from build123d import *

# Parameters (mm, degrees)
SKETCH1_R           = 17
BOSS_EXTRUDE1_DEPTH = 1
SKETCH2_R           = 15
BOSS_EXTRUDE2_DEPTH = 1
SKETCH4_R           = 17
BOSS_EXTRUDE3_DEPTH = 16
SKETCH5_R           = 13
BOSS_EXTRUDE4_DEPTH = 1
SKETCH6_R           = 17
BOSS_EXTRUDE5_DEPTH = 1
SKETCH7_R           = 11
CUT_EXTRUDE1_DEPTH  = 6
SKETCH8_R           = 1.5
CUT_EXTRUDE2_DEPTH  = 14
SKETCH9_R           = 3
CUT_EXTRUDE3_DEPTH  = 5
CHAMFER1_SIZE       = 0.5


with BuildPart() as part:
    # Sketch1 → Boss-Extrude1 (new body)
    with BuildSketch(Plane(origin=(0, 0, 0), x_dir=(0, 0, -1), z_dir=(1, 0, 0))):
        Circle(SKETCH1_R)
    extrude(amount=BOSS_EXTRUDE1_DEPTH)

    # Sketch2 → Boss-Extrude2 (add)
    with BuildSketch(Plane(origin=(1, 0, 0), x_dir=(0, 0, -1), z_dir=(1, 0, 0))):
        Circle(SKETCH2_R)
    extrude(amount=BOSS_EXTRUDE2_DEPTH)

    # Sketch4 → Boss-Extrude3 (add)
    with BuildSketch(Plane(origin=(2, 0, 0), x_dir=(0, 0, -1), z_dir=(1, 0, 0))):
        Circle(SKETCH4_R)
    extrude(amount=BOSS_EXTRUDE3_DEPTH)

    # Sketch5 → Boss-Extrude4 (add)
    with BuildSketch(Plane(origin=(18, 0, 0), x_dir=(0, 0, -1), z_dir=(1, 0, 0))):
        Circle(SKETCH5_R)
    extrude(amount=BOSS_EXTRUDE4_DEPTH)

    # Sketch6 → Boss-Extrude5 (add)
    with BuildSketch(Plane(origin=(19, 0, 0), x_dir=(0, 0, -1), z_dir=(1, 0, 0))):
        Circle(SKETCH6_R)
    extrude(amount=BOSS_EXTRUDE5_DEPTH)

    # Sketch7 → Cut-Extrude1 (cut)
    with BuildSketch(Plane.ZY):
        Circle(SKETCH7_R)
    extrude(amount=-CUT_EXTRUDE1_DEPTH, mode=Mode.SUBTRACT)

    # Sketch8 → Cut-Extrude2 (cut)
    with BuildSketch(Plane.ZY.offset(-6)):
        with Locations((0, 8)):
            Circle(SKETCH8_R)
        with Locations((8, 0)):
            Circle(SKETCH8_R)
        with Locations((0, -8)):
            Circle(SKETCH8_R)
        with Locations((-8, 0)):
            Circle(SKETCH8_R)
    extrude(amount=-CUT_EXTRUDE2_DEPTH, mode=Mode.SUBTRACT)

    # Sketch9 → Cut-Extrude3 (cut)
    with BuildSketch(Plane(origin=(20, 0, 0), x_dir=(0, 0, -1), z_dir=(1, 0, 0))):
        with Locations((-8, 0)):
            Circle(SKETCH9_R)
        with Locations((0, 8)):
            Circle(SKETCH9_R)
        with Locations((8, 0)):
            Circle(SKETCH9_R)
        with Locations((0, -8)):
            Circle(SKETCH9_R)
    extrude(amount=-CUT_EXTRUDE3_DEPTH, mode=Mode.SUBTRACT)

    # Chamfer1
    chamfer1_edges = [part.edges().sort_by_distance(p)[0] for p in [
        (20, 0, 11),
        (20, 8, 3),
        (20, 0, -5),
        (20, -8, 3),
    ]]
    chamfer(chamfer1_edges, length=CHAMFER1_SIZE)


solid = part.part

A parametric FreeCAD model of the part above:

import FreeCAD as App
import Part
import Sketcher
from FreeCAD import Vector
Q = App.Units.Quantity


def edges_at(feature, points):
    """Names of the edges that pass closest to the given points."""
    edges = feature.Shape.Edges
    near = lambda p: min(range(len(edges)), key=lambda i: edges[i].distToShape(Part.Vertex(*p))[0])
    return sorted({f"Edge{near(p) + 1}" for p in points})

doc = App.newDocument("Part")
body = doc.addObject("PartDesign::Body", "Body")

sketch1 = body.newObject("Sketcher::SketchObject", "Sketch")
sketch1.AttachmentSupport = (doc.getObject("YZ_Plane"), [""])
sketch1.MapMode = "FlatFace"
sketch1.addGeometry(Part.Circle(Vector(0, 0, 0), Vector(0, 0, 1), 17), False)
sketch1.addConstraint(Sketcher.Constraint("Coincident", 0, 3, -1, 1))
sketch1.addConstraint(Sketcher.Constraint("Diameter", 0, Q("34 mm")))
pad1 = body.newObject("PartDesign::Pad", "Pad")
pad1.Profile = sketch1
pad1.Length = 1

sketch2 = body.newObject("Sketcher::SketchObject", "Sketch001")
sketch2.AttachmentSupport = (doc.getObject("YZ_Plane"), [""])
sketch2.MapMode = "FlatFace"
sketch2.AttachmentOffset = App.Placement(Vector(0, 0, 1), App.Rotation())
sketch2.addGeometry(Part.Circle(Vector(0, 0, 0), Vector(0, 0, 1), 15), False)
sketch2.addConstraint(Sketcher.Constraint("Coincident", 0, 3, -1, 1))
sketch2.addConstraint(Sketcher.Constraint("Diameter", 0, Q("30 mm")))
pad2 = body.newObject("PartDesign::Pad", "Pad001")
pad2.Profile = sketch2
pad2.Length = 1

sketch3 = body.newObject("Sketcher::SketchObject", "Sketch002")
sketch3.AttachmentSupport = (doc.getObject("YZ_Plane"), [""])
sketch3.MapMode = "FlatFace"
sketch3.AttachmentOffset = App.Placement(Vector(0, 0, 2), App.Rotation())
sketch3.addGeometry(Part.Circle(Vector(0, 0, 0), Vector(0, 0, 1), 17), False)
sketch3.addConstraint(Sketcher.Constraint("Coincident", 0, 3, -1, 1))
sketch3.addConstraint(Sketcher.Constraint("Diameter", 0, Q("34 mm")))
pad3 = body.newObject("PartDesign::Pad", "Pad002")
pad3.Profile = sketch3
pad3.Length = 16

sketch4 = body.newObject("Sketcher::SketchObject", "Sketch003")
sketch4.AttachmentSupport = (doc.getObject("YZ_Plane"), [""])
sketch4.MapMode = "FlatFace"
sketch4.AttachmentOffset = App.Placement(Vector(0, 0, 18), App.Rotation())
sketch4.addGeometry(Part.Circle(Vector(0, 0, 0), Vector(0, 0, 1), 13), False)
sketch4.addConstraint(Sketcher.Constraint("Coincident", 0, 3, -1, 1))
sketch4.addConstraint(Sketcher.Constraint("Diameter", 0, Q("26 mm")))
pad4 = body.newObject("PartDesign::Pad", "Pad003")
pad4.Profile = sketch4
pad4.Length = 1

sketch5 = body.newObject("Sketcher::SketchObject", "Sketch004")
sketch5.AttachmentSupport = (doc.getObject("YZ_Plane"), [""])
sketch5.MapMode = "FlatFace"
sketch5.AttachmentOffset = App.Placement(Vector(0, 0, 19), App.Rotation())
sketch5.addGeometry(Part.Circle(Vector(0, 0, 0), Vector(0, 0, 1), 17), False)
sketch5.addConstraint(Sketcher.Constraint("Coincident", 0, 3, -1, 1))
sketch5.addConstraint(Sketcher.Constraint("Diameter", 0, Q("34 mm")))
pad5 = body.newObject("PartDesign::Pad", "Pad004")
pad5.Profile = sketch5
pad5.Length = 1

sketch6 = body.newObject("Sketcher::SketchObject", "Sketch005")
sketch6.AttachmentSupport = (doc.getObject("YZ_Plane"), [""])
sketch6.MapMode = "FlatFace"
sketch6.addGeometry(Part.Circle(Vector(0, 0, 0), Vector(0, 0, 1), 11), False)
sketch6.addConstraint(Sketcher.Constraint("Coincident", 0, 3, -1, 1))
sketch6.addConstraint(Sketcher.Constraint("Diameter", 0, Q("22 mm")))
pocket1 = body.newObject("PartDesign::Pocket", "Pocket")
pocket1.Profile = sketch6
pocket1.Length = 6
pocket1.Reversed = True

sketch7 = body.newObject("Sketcher::SketchObject", "Sketch006")
sketch7.AttachmentSupport = (doc.getObject("YZ_Plane"), [""])
sketch7.MapMode = "FlatFace"
sketch7.AttachmentOffset = App.Placement(Vector(0, 0, 6), App.Rotation())
sketch7.addGeometry(Part.Circle(Vector(8, 0, 0), Vector(0, 0, 1), 1.5), False)
sketch7.addGeometry(Part.Circle(Vector(0, 8, 0), Vector(0, 0, 1), 1.5), False)
sketch7.addGeometry(Part.Circle(Vector(-8, 0, 0), Vector(0, 0, 1), 1.5), False)
sketch7.addGeometry(Part.Circle(Vector(0, -8, 0), Vector(0, 0, 1), 1.5), False)
sketch7.addConstraint(Sketcher.Constraint("Equal", 0, 1))
sketch7.addConstraint(Sketcher.Constraint("Equal", 1, 2))
sketch7.addConstraint(Sketcher.Constraint("Equal", 2, 3))
sketch7.addConstraint(Sketcher.Constraint("Symmetric", 0, 3, 2, 3, -1, 1))
sketch7.addConstraint(Sketcher.Constraint("Symmetric", 1, 3, 3, 3, -1, 1))
sketch7.addConstraint(Sketcher.Constraint("PointOnObject", 0, 3, -1))
sketch7.addConstraint(Sketcher.Constraint("PointOnObject", 1, 3, -2))
sketch7.addConstraint(Sketcher.Constraint("Diameter", 0, Q("3 mm")))
sketch7.addConstraint(Sketcher.Constraint("DistanceX", -1, 1, 0, 3, Q("8 mm")))
sketch7.addConstraint(Sketcher.Constraint("DistanceY", -1, 1, 1, 3, Q("8 mm")))
pocket2 = body.newObject("PartDesign::Pocket", "Pocket001")
pocket2.Profile = sketch7
pocket2.Length = 14
pocket2.Reversed = True

sketch8 = body.newObject("Sketcher::SketchObject", "Sketch007")
sketch8.AttachmentSupport = (doc.getObject("YZ_Plane"), [""])
sketch8.MapMode = "FlatFace"
sketch8.AttachmentOffset = App.Placement(Vector(0, 0, 20), App.Rotation())
sketch8.addGeometry(Part.Circle(Vector(0, 8, 0), Vector(0, 0, 1), 3), False)
sketch8.addGeometry(Part.Circle(Vector(8, 0, 0), Vector(0, 0, 1), 3), False)
sketch8.addGeometry(Part.Circle(Vector(0, -8, 0), Vector(0, 0, 1), 3), False)
sketch8.addGeometry(Part.Circle(Vector(-8, 0, 0), Vector(0, 0, 1), 3), False)
sketch8.addConstraint(Sketcher.Constraint("Equal", 0, 1))
sketch8.addConstraint(Sketcher.Constraint("Equal", 1, 2))
sketch8.addConstraint(Sketcher.Constraint("Equal", 2, 3))
sketch8.addConstraint(Sketcher.Constraint("Symmetric", 0, 3, 2, 3, -1, 1))
sketch8.addConstraint(Sketcher.Constraint("Symmetric", 1, 3, 3, 3, -1, 1))
sketch8.addConstraint(Sketcher.Constraint("PointOnObject", 0, 3, -2))
sketch8.addConstraint(Sketcher.Constraint("PointOnObject", 1, 3, -1))
sketch8.addConstraint(Sketcher.Constraint("Diameter", 0, Q("6 mm")))
sketch8.addConstraint(Sketcher.Constraint("DistanceY", -1, 1, 0, 3, Q("8 mm")))
sketch8.addConstraint(Sketcher.Constraint("DistanceX", -1, 1, 1, 3, Q("8 mm")))
pocket3 = body.newObject("PartDesign::Pocket", "Pocket002")
pocket3.Profile = sketch8
pocket3.Length = 5
doc.recompute()

chamfer = body.newObject("PartDesign::Chamfer", "Chamfer")
chamfer.Base = (pocket3, edges_at(pocket3, [
    (20, 0, 11),
    (20, 8, 3),
    (20, 0, -5),
    (20, -8, 3),
]))
chamfer.Size = 0.5

doc.recompute()
